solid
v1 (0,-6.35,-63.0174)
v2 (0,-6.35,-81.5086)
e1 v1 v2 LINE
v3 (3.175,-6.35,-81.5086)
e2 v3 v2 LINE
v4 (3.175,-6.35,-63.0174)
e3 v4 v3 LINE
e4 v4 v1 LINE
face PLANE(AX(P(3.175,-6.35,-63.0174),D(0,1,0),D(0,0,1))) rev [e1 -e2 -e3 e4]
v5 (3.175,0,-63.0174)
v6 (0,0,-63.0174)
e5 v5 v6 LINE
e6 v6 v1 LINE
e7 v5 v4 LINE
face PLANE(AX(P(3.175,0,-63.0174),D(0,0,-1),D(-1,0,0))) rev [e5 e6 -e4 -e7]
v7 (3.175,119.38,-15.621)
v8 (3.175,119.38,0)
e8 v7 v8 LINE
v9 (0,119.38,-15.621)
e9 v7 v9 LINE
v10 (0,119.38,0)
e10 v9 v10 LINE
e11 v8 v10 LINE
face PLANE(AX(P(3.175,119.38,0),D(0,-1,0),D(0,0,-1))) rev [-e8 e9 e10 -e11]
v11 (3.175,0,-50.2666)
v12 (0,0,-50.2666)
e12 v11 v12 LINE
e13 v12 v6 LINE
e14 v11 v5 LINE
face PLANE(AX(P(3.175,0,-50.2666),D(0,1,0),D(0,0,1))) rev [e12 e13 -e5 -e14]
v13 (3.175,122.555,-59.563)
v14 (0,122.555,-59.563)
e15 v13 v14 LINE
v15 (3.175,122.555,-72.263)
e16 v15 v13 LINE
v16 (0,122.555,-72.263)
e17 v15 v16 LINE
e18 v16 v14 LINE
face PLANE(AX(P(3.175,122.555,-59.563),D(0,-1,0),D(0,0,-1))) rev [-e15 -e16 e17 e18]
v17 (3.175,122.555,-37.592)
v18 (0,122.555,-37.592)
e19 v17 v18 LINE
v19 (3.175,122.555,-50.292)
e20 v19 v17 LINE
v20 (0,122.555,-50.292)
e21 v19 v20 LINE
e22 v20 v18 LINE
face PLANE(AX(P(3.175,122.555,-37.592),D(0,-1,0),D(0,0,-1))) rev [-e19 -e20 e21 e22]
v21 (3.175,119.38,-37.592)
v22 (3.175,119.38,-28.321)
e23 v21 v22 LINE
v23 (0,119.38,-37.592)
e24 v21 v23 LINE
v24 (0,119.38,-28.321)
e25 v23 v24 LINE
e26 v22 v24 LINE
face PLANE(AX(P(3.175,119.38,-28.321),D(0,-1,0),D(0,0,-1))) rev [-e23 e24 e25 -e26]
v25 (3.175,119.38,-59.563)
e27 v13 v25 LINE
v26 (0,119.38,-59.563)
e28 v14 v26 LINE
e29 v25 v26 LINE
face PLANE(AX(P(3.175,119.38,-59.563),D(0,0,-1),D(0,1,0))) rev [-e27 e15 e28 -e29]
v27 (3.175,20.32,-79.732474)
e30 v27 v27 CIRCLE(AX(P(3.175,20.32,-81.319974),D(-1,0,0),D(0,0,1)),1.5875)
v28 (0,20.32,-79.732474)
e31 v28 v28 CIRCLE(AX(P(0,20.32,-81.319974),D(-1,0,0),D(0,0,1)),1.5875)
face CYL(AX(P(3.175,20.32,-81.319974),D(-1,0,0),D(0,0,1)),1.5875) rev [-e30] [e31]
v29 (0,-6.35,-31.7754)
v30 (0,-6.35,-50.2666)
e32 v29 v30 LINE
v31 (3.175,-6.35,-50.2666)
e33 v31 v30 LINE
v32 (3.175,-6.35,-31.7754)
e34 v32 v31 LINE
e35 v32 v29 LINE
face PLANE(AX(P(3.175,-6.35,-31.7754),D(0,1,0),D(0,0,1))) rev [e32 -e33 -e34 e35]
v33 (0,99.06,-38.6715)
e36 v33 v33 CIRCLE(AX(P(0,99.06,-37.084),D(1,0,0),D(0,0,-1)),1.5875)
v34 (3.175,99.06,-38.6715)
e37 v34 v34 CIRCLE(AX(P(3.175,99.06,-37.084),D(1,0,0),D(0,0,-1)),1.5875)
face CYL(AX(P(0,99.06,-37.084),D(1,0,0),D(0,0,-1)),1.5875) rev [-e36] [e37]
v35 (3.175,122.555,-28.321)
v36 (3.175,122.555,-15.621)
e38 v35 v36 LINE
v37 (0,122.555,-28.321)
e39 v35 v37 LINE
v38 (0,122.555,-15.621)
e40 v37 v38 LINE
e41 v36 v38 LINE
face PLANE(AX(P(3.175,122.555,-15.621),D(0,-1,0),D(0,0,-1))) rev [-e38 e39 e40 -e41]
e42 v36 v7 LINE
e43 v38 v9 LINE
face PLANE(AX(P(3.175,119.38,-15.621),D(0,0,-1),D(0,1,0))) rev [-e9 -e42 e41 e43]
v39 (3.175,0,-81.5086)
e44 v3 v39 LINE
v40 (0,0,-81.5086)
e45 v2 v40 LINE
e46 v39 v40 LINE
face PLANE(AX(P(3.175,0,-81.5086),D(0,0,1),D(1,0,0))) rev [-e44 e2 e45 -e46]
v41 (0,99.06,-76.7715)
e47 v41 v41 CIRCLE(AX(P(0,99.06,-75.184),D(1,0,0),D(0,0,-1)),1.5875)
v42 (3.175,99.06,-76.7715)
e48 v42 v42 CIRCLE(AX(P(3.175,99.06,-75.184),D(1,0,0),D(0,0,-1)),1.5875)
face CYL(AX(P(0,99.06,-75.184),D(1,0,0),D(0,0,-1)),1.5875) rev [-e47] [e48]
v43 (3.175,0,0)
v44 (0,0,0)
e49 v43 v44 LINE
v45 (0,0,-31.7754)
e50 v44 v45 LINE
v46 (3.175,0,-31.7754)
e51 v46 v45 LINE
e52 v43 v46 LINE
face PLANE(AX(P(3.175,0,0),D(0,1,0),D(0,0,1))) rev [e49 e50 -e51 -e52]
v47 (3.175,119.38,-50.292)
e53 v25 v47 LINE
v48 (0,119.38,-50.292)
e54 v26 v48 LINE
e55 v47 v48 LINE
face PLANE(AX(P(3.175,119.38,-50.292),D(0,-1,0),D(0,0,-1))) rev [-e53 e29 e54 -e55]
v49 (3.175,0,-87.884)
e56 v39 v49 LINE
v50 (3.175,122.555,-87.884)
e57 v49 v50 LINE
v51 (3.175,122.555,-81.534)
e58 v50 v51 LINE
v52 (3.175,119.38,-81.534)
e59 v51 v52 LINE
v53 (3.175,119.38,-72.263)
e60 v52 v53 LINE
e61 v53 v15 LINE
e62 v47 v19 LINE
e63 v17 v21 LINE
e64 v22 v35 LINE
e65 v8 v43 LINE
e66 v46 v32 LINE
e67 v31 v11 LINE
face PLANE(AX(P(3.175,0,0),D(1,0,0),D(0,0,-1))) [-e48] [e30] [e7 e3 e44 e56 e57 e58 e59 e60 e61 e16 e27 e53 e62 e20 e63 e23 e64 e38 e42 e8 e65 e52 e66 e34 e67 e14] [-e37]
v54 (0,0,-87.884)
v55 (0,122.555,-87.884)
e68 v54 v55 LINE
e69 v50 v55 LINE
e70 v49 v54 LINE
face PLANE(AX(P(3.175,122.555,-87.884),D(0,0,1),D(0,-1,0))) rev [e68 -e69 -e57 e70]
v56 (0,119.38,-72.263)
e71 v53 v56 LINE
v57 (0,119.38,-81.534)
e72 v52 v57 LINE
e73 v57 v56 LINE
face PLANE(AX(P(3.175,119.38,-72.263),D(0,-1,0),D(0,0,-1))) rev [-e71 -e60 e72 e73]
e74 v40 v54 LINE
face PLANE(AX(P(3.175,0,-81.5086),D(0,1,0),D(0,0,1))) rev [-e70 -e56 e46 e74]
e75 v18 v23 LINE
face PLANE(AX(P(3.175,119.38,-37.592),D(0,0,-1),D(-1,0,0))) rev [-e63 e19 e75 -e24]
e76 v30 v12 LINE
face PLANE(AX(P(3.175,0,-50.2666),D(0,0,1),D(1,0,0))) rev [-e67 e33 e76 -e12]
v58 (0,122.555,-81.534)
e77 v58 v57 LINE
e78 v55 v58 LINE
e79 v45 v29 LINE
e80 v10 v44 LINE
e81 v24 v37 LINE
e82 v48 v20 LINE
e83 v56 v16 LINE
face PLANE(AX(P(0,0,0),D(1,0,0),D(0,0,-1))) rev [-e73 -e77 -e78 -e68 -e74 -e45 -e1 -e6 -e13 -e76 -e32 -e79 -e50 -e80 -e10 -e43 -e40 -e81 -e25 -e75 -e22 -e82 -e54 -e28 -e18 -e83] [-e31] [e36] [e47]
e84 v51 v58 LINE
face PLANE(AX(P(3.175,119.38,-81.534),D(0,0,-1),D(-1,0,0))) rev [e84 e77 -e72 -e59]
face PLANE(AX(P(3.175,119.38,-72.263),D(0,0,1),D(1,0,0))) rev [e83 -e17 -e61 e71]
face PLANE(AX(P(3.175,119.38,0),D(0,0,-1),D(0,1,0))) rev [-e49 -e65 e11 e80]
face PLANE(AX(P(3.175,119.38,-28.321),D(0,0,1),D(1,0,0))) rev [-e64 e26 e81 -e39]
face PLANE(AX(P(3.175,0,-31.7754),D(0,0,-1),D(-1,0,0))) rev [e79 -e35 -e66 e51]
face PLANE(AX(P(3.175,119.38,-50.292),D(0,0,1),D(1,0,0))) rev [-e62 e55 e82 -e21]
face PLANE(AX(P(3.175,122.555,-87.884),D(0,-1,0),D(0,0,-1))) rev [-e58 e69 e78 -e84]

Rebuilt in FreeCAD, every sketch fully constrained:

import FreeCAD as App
import Part
import Sketcher

V = App.Vector
Q = App.Units.Quantity


def add_polygon(sketch, points):
    """Adds a closed chain of lines whose ends are joined by coincident constraints."""
    first, n = sketch.GeometryCount, len(points)
    for a, b in zip(points, points[1:] + points[:1]):
        sketch.addGeometry(Part.LineSegment(App.Vector(*a, 0), App.Vector(*b, 0)), False)
    for i in range(n):
        sketch.addConstraint(Sketcher.Constraint("Coincident", first + i, 2, first + (i + 1) % n, 1))

doc = App.newDocument("Part")
body = doc.addObject("PartDesign::Body", "Body")

# Sketch on YZ plane
sketch1 = body.newObject("Sketcher::SketchObject", "Sketch")
sketch1.AttachmentSupport = (doc.getObject("YZ_Plane"), [""])
sketch1.MapMode = "FlatFace"
add_polygon(sketch1, [(119.4, -15.6), (119.4, 0), (0, 0), (0, -31.8), (-6.3, -31.8), (-6.3, -50.3), (0, -50.3), (0, -63), (-6.3, -63), (-6.3, -81.5), (0, -81.5), (0, -87.9), (122.6, -87.9), (122.6, -81.5), (119.4, -81.5), (119.4, -72.3), (122.6, -72.3), (122.6, -59.6), (119.4, -59.6), (119.4, -50.3), (122.6, -50.3), (122.6, -37.6), (119.4, -37.6), (119.4, -28.3), (122.6, -28.3), (122.6, -15.6)])  # lines 0-25
sketch1.addConstraint(Sketcher.Constraint("Vertical", 0))
sketch1.addConstraint(Sketcher.Constraint("Horizontal", 1))
sketch1.addConstraint(Sketcher.Constraint("Vertical", 2))
sketch1.addConstraint(Sketcher.Constraint("Horizontal", 3))
sketch1.addConstraint(Sketcher.Constraint("Vertical", 4))
sketch1.addConstraint(Sketcher.Constraint("Horizontal", 5))
sketch1.addConstraint(Sketcher.Constraint("Vertical", 6))
sketch1.addConstraint(Sketcher.Constraint("Horizontal", 7))
sketch1.addConstraint(Sketcher.Constraint("Vertical", 8))
sketch1.addConstraint(Sketcher.Constraint("Horizontal", 9))
sketch1.addConstraint(Sketcher.Constraint("Vertical", 10))
sketch1.addConstraint(Sketcher.Constraint("Horizontal", 11))
sketch1.addConstraint(Sketcher.Constraint("Vertical", 12))
sketch1.addConstraint(Sketcher.Constraint("Horizontal", 13))
sketch1.addConstraint(Sketcher.Constraint("Vertical", 14))
sketch1.addConstraint(Sketcher.Constraint("Horizontal", 15))
sketch1.addConstraint(Sketcher.Constraint("Vertical", 16))
sketch1.addConstraint(Sketcher.Constraint("Horizontal", 17))
sketch1.addConstraint(Sketcher.Constraint("Vertical", 18))
sketch1.addConstraint(Sketcher.Constraint("Horizontal", 19))
sketch1.addConstraint(Sketcher.Constraint("Vertical", 20))
sketch1.addConstraint(Sketcher.Constraint("Horizontal", 21))
sketch1.addConstraint(Sketcher.Constraint("Vertical", 22))
sketch1.addConstraint(Sketcher.Constraint("Horizontal", 23))
sketch1.addConstraint(Sketcher.Constraint("Vertical", 24))
sketch1.addConstraint(Sketcher.Constraint("Horizontal", 25))
sketch1.addConstraint(Sketcher.Constraint("Coincident", 1, 2, -1, 1))
sketch1.addConstraint(Sketcher.Constraint("PointOnObject", 5, 2, -2))
sketch1.addConstraint(Sketcher.Constraint("PointOnObject", 9, 2, -2))
sketch1.addConstraint(Sketcher.Constraint("Vertical", 4, 2, 7, 2))
sketch1.addConstraint(Sketcher.Constraint("Vertical", 0, 2, 13, 2))
sketch1.addConstraint(Sketcher.Constraint("Vertical", 12, 2, 15, 2))
sketch1.addConstraint(Sketcher.Constraint("Vertical", 14, 2, 17, 2))
sketch1.addConstraint(Sketcher.Constraint("Vertical", 16, 2, 19, 2))
sketch1.addConstraint(Sketcher.Constraint("Vertical", 18, 2, 21, 2))
sketch1.addConstraint(Sketcher.Constraint("Vertical", 20, 2, 23, 2))
sketch1.addConstraint(Sketcher.Constraint("Equal", 4, 8))
sketch1.addConstraint(Sketcher.Constraint("Equal", 9, 12))
sketch1.addConstraint(Sketcher.Constraint("Equal", 14, 18))
sketch1.addConstraint(Sketcher.Constraint("Equal", 16, 20))
sketch1.addConstraint(Sketcher.Constraint("Equal", 18, 22))
sketch1.addConstraint(Sketcher.Constraint("Equal", 20, 24))
sketch1.addConstraint(Sketcher.Constraint("DistanceX", 1, 2, 1, 1, Q("4.7 in")))
sketch1.addConstraint(Sketcher.Constraint("DistanceY", 16, 1, 16, 2, Q("0.5 in")))
sketch1.addConstraint(Sketcher.Constraint("DistanceX", 3, 2, 3, 1, Q("0.25 in")))
sketch1.addConstraint(Sketcher.Constraint("DistanceX", 11, 1, 11, 2, Q("4.825 in")))
sketch1.addConstraint(Sketcher.Constraint("DistanceY", 0, 1, 0, 2, Q("0.615 in")))
sketch1.addConstraint(Sketcher.Constraint("DistanceY", 2, 2, 2, 1, Q("1.251 in")))
sketch1.addConstraint(Sketcher.Constraint("DistanceY", 4, 2, 4, 1, Q("0.728 in")))
sketch1.addConstraint(Sketcher.Constraint("DistanceY", 6, 2, 6, 1, Q("0.502 in")))
sketch1.addConstraint(Sketcher.Constraint("DistanceY", 10, 2, 10, 1, Q("0.251 in")))
pad1 = body.newObject("PartDesign::Pad", "Pad")
pad1.Profile = sketch1
pad1.Length = Q("0.125 in")

# Sketch on YZ plane
sketch2 = body.newObject("Sketcher::SketchObject", "Sketch001")
sketch2.AttachmentSupport = (doc.getObject("YZ_Plane"), [""])
sketch2.MapMode = "FlatFace"
sketch2.AttachmentOffset = App.Placement(V(0, 0, 0.125 * 25.4), App.Rotation())
sketch2.addGeometry(Part.Circle(V(99.1, -37.1, 0), V(0, 0, 1), 1.6), False)
sketch2.addGeometry(Part.Circle(V(99.1, -75.2, 0), V(0, 0, 1), 1.6), False)
sketch2.addConstraint(Sketcher.Constraint("Equal", 0, 1))
sketch2.addConstraint(Sketcher.Constraint("Vertical", 0, 3, 1, 3))
sketch2.addConstraint(Sketcher.Constraint("Diameter", 0, Q("0.125 in")))
sketch2.addConstraint(Sketcher.Constraint("DistanceX", -1, 1, 0, 3, Q("3.9 in")))
sketch2.addConstraint(Sketcher.Constraint("DistanceY", 1, 3, 0, 3, Q("1.5 in")))
sketch2.addConstraint(Sketcher.Constraint("DistanceY", 0, 3, -1, 1, Q("1.46 in")))
pocket1 = body.newObject("PartDesign::Pocket", "Pocket")
pocket1.Profile = sketch2
pocket1.Type = "ThroughAll"

# Sketch on YZ plane
sketch3 = body.newObject("Sketcher::SketchObject", "Sketch002")
sketch3.AttachmentSupport = (doc.getObject("YZ_Plane"), [""])
sketch3.MapMode = "FlatFace"
sketch3.addGeometry(Part.Circle(V(20.3, -81.3, 0), V(0, 0, 1), 1.6), False)
sketch3.addConstraint(Sketcher.Constraint("Diameter", 0, Q("0.125 in")))
sketch3.addConstraint(Sketcher.Constraint("DistanceX", -1, 1, 0, 3, Q("0.8 in")))
sketch3.addConstraint(Sketcher.Constraint("DistanceY", 0, 3, -1, 1, 81.319974))
pocket2 = body.newObject("PartDesign::Pocket", "Pocket001")
pocket2.Profile = sketch3
pocket2.Type = "ThroughAll"
pocket2.Reversed = True

doc.recompute()
